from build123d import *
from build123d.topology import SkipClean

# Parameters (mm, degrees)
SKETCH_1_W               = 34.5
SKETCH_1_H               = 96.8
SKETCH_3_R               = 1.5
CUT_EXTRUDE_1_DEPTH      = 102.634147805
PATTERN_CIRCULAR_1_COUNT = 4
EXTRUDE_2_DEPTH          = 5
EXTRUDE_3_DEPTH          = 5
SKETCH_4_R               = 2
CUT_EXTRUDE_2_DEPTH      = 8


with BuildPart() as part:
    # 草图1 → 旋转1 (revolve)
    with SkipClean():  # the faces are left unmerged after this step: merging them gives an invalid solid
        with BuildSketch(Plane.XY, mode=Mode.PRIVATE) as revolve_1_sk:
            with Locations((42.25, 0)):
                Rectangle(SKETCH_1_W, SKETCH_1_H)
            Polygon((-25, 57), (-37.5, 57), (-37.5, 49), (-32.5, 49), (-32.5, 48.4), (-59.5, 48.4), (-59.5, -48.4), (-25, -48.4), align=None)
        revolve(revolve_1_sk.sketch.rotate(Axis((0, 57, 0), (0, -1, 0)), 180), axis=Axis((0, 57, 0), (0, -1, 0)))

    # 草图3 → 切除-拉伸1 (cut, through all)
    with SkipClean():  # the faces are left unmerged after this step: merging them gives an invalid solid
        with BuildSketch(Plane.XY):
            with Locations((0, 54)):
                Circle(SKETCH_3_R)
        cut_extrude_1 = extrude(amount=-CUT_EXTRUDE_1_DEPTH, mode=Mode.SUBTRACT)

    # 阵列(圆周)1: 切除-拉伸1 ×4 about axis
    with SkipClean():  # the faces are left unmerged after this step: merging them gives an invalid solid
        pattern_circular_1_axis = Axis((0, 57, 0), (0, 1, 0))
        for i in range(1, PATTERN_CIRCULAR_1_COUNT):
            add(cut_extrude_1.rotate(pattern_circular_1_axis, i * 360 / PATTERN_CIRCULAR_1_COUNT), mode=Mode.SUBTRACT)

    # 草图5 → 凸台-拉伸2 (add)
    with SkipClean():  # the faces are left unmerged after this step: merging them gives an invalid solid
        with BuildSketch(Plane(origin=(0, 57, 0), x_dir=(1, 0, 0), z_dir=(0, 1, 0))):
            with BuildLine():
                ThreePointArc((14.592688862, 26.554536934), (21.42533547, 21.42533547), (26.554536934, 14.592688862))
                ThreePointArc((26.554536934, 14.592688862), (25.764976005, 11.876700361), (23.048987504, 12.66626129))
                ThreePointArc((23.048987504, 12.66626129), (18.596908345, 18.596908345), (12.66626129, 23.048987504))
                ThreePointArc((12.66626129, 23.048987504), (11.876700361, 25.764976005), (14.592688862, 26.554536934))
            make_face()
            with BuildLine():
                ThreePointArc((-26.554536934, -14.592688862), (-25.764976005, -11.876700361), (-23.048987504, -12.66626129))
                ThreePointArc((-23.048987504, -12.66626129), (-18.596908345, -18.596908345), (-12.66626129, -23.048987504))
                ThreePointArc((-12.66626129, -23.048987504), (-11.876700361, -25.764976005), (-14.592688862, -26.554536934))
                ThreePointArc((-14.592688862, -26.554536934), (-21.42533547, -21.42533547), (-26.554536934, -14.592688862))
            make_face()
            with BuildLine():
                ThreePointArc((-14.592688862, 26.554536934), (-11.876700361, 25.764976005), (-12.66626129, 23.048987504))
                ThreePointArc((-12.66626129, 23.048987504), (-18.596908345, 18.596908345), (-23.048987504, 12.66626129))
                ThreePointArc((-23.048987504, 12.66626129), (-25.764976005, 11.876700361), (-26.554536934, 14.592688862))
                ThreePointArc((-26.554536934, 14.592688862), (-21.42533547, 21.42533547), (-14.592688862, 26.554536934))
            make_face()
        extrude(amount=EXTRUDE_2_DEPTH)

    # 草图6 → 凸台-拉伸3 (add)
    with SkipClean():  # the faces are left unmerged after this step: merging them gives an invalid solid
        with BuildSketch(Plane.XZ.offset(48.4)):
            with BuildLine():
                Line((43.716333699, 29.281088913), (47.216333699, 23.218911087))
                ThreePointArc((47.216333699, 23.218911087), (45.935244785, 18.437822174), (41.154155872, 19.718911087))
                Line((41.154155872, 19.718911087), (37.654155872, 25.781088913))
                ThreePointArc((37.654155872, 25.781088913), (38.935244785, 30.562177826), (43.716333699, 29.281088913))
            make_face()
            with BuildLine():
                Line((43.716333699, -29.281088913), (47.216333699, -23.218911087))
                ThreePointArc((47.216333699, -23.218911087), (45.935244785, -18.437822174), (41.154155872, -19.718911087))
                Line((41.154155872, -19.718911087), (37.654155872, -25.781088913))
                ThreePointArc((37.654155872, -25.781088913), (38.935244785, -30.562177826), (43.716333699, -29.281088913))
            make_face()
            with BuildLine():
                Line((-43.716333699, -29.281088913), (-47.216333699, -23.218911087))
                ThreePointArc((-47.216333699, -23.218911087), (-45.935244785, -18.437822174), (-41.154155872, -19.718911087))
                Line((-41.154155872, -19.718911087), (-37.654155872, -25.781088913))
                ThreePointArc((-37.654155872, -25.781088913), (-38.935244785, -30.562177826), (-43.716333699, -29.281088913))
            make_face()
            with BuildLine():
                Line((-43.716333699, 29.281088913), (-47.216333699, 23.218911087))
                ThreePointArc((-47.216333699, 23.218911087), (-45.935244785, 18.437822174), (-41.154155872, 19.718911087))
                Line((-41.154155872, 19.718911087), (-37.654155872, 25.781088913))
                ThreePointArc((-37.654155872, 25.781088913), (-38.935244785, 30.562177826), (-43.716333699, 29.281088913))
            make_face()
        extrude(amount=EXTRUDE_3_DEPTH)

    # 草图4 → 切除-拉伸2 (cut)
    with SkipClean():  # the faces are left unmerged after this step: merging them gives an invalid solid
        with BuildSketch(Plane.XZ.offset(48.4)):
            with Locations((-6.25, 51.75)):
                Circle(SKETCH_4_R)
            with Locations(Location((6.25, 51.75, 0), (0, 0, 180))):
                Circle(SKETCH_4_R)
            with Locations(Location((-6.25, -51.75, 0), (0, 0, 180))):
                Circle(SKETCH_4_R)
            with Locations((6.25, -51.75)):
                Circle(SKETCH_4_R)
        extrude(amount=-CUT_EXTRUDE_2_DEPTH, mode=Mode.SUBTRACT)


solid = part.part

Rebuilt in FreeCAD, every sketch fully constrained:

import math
import FreeCAD as App
import Part
import Sketcher
from FreeCAD import Vector
Q = App.Units.Quantity

doc = App.newDocument("Part")
body = doc.addObject("PartDesign::Body", "Body")

# Sketch on XY plane
sketch1 = body.newObject("Sketcher::SketchObject", "Sketch")
sketch1.AttachmentSupport = (doc.getObject("XY_Plane"), [""])
sketch1.MapMode = "FlatFace"
sketch1.addGeometry(Part.LineSegment(Vector(25, 48.4, 0), Vector(25, -48.4, 0)), False)
sketch1.addGeometry(Part.LineSegment(Vector(25, -48.4, 0), Vector(59.5, -48.4, 0)), False)
sketch1.addGeometry(Part.LineSegment(Vector(59.5, -48.4, 0), Vector(59.5, 48.4, 0)), False)
sketch1.addGeometry(Part.LineSegment(Vector(59.5, 48.4, 0), Vector(25, 48.4, 0)), False)
sketch1.addGeometry(Part.LineSegment(Vector(-25, 57, 0), Vector(-37.5, 57, 0)), False)
sketch1.addGeometry(Part.LineSegment(Vector(-37.5, 57, 0), Vector(-37.5, 49, 0)), False)
sketch1.addGeometry(Part.LineSegment(Vector(-37.5, 49, 0), Vector(-32.5, 49, 0)), False)
sketch1.addGeometry(Part.LineSegment(Vector(-32.5, 49, 0), Vector(-32.5, 48.4, 0)), False)
sketch1.addGeometry(Part.LineSegment(Vector(-32.5, 48.4, 0), Vector(-59.5, 48.4, 0)), False)
sketch1.addGeometry(Part.LineSegment(Vector(-59.5, 48.4, 0), Vector(-59.5, -48.4, 0)), False)
sketch1.addGeometry(Part.LineSegment(Vector(-59.5, -48.4, 0), Vector(-25, -48.4, 0)), False)
sketch1.addGeometry(Part.LineSegment(Vector(-25, -48.4, 0), Vector(-25, 57, 0)), False)
sketch1.addConstraint(Sketcher.Constraint("Coincident", 0, 2, 1, 1))
sketch1.addConstraint(Sketcher.Constraint("Coincident", 1, 2, 2, 1))
sketch1.addConstraint(Sketcher.Constraint("Coincident", 2, 2, 3, 1))
sketch1.addConstraint(Sketcher.Constraint("Coincident", 3, 2, 0, 1))
sketch1.addConstraint(Sketcher.Constraint("Coincident", 4, 2, 5, 1))
sketch1.addConstraint(Sketcher.Constraint("Coincident", 5, 2, 6, 1))
sketch1.addConstraint(Sketcher.Constraint("Coincident", 6, 2, 7, 1))
sketch1.addConstraint(Sketcher.Constraint("Coincident", 7, 2, 8, 1))
sketch1.addConstraint(Sketcher.Constraint("Coincident", 8, 2, 9, 1))
sketch1.addConstraint(Sketcher.Constraint("Coincident", 9, 2, 10, 1))
sketch1.addConstraint(Sketcher.Constraint("Coincident", 10, 2, 11, 1))
sketch1.addConstraint(Sketcher.Constraint("Coincident", 11, 2, 4, 1))
sketch1.addConstraint(Sketcher.Constraint("Vertical", 0))
sketch1.addConstraint(Sketcher.Constraint("Horizontal", 1))
sketch1.addConstraint(Sketcher.Constraint("Vertical", 2))
sketch1.addConstraint(Sketcher.Constraint("Horizontal", 3))
sketch1.addConstraint(Sketcher.Constraint("Horizontal", 4))
sketch1.addConstraint(Sketcher.Constraint("Vertical", 5))
sketch1.addConstraint(Sketcher.Constraint("Horizontal", 6))
sketch1.addConstraint(Sketcher.Constraint("Vertical", 7))
sketch1.addConstraint(Sketcher.Constraint("Horizontal", 8))
sketch1.addConstraint(Sketcher.Constraint("Vertical", 9))
sketch1.addConstraint(Sketcher.Constraint("Horizontal", 10))
sketch1.addConstraint(Sketcher.Constraint("Vertical", 11))
sketch1.addConstraint(Sketcher.Constraint("Symmetric", 1, 2, 8, 2, -1, 1))
sketch1.addConstraint(Sketcher.Constraint("Symmetric", 3, 2, 10, 2, -1, 1))
sketch1.addConstraint(Sketcher.Constraint("Horizontal", 3, 2, 7, 2))
sketch1.addConstraint(Sketcher.Constraint("DistanceX", 6, 1, 6, 2, 5.0))
sketch1.addConstraint(Sketcher.Constraint("DistanceX", 8, 2, 8, 1, 27.0))
sketch1.addConstraint(Sketcher.Constraint("DistanceY", 5, 2, 5, 1, 8.0))
sketch1.addConstraint(Sketcher.Constraint("DistanceX", 1, 1, 1, 2, 34.5))
sketch1.addConstraint(Sketcher.Constraint("DistanceY", 0, 2, 0, 1, 96.8))
sketch1.addConstraint(Sketcher.Constraint("DistanceY", 7, 2, 7, 1, 0.6))
sketch1.addConstraint(Sketcher.Constraint("DistanceX", -1, 1, 0, 2, 25.0))
revolution = body.newObject("PartDesign::Revolution", "Revolution")
revolution.Profile = sketch1
revolution.ReferenceAxis = (sketch1, ["V_Axis"])
revolution.Angle = 360

# Sketch on XY plane
sketch2 = body.newObject("Sketcher::SketchObject", "Sketch001")
sketch2.AttachmentSupport = (doc.getObject("XY_Plane"), [""])
sketch2.MapMode = "FlatFace"
sketch2.addGeometry(Part.Circle(Vector(0, 54, 0), Vector(0, 0, 1), 1.5), False)
sketch2.addConstraint(Sketcher.Constraint("PointOnObject", 0, 3, -2))
sketch2.addConstraint(Sketcher.Constraint("Diameter", 0, 3.0))
sketch2.addConstraint(Sketcher.Constraint("DistanceY", -1, 1, 0, 3, 54.0))
pocket1 = body.newObject("PartDesign::Pocket", "Pocket")
pocket1.Profile = sketch2
pocket1.Type = "ThroughAll"
doc.recompute()

polarpattern = body.newObject("PartDesign::PolarPattern", "PolarPattern")
polarpattern.Originals = [pocket1]
polarpattern.Axis = (doc.getObject("Y_Axis"), [""])
polarpattern.Angle = 360
polarpattern.Occurrences = 4
body.Tip = polarpattern

# Sketch on XZ plane
sketch3 = body.newObject("Sketcher::SketchObject", "Sketch002")
sketch3.AttachmentSupport = (doc.getObject("XZ_Plane"), [""])
sketch3.MapMode = "FlatFace"
sketch3.AttachmentOffset = App.Placement(Vector(0, 0, -57), App.Rotation())
sketch3.addGeometry(Part.ArcOfCircle(Part.Circle(Vector(0, 0, 0), Vector(0, 0, 1), 30.3), math.radians(-61), math.radians(-29)), False)
sketch3.addGeometry(Part.ArcOfCircle(Part.Circle(Vector(13.6, -24.8, 0), Vector(0, 0, 1), 2), math.radians(119), math.radians(299)), False)
sketch3.addGeometry(Part.ArcOfCircle(Part.Circle(Vector(0, 0, 0), Vector(0, 0, 1), 26.3), math.radians(-61), math.radians(-29)), False)
sketch3.addGeometry(Part.ArcOfCircle(Part.Circle(Vector(24.8, -13.6, 0), Vector(0, 0, 1), 2), math.radians(-29), math.radians(151)), False)
sketch3.addGeometry(Part.ArcOfCircle(Part.Circle(Vector(-24.8, 13.6, 0), Vector(0, 0, 1), 2), math.radians(151), math.radians(331)), False)
sketch3.addGeometry(Part.ArcOfCircle(Part.Circle(Vector(0, 0, 0), Vector(0, 0, 1), 30.3), math.radians(119), math.radians(151)), False)
sketch3.addGeometry(Part.ArcOfCircle(Part.Circle(Vector(-13.6, 24.8, 0), Vector(0, 0, 1), 2), math.radians(-61), math.radians(119)), False)
sketch3.addGeometry(Part.ArcOfCircle(Part.Circle(Vector(0, 0, 0), Vector(0, 0, 1), 26.3), math.radians(119), math.radians(151)), False)
sketch3.addGeometry(Part.ArcOfCircle(Part.Circle(Vector(-13.6, -24.8, 0), Vector(0, 0, 1), 2), math.radians(-119), math.radians(61)), False)
sketch3.addGeometry(Part.ArcOfCircle(Part.Circle(Vector(0, 0, 0), Vector(0, 0, 1), 30.3), math.radians(-151), math.radians(-119)), False)
sketch3.addGeometry(Part.ArcOfCircle(Part.Circle(Vector(-24.8, -13.6, 0), Vector(0, 0, 1), 2), math.radians(29), math.radians(209)), False)
sketch3.addGeometry(Part.ArcOfCircle(Part.Circle(Vector(0, 0, 0), Vector(0, 0, 1), 26.3), math.radians(-151), math.radians(-119)), False)
sketch3.addConstraint(Sketcher.Constraint("Tangent", 0, 1, 1, 2))
sketch3.addConstraint(Sketcher.Constraint("Tangent", 1, 1, 2, 1))
sketch3.addConstraint(Sketcher.Constraint("Tangent", 2, 2, 3, 2))
sketch3.addConstraint(Sketcher.Constraint("Tangent", 3, 1, 0, 2))
sketch3.addConstraint(Sketcher.Constraint("Tangent", 4, 1, 5, 2))
sketch3.addConstraint(Sketcher.Constraint("Tangent", 5, 1, 6, 2))
sketch3.addConstraint(Sketcher.Constraint("Tangent", 6, 1, 7, 1))
sketch3.addConstraint(Sketcher.Constraint("Tangent", 7, 2, 4, 2))
sketch3.addConstraint(Sketcher.Constraint("Tangent", 8, 1, 9, 2))
sketch3.addConstraint(Sketcher.Constraint("Tangent", 9, 1, 10, 2))
sketch3.addConstraint(Sketcher.Constraint("Tangent", 10, 1, 11, 1))
sketch3.addConstraint(Sketcher.Constraint("Tangent", 11, 2, 8, 2))
sketch3.addConstraint(Sketcher.Constraint("Coincident", 0, 3, -1, 1))
sketch3.addConstraint(Sketcher.Constraint("Coincident", 2, 3, -1, 1))
sketch3.addConstraint(Sketcher.Constraint("Coincident", 5, 3, -1, 1))
sketch3.addConstraint(Sketcher.Constraint("Coincident", 7, 3, -1, 1))
sketch3.addConstraint(Sketcher.Constraint("Coincident", 9, 3, -1, 1))
sketch3.addConstraint(Sketcher.Constraint("Coincident", 11, 3, -1, 1))
sketch3.addConstraint(Sketcher.Constraint("Equal", 3, 4))
sketch3.addConstraint(Sketcher.Constraint("Equal", 0, 5))
sketch3.addConstraint(Sketcher.Constraint("Equal", 6, 8))
sketch3.addConstraint(Sketcher.Constraint("Equal", 5, 9))
sketch3.addConstraint(Sketcher.Constraint("Horizontal", 1, 3, 8, 3))
sketch3.addConstraint(Sketcher.Constraint("Horizontal", 3, 3, 10, 3))
sketch3.addConstraint(Sketcher.Constraint("Vertical", 6, 3, 8, 3))
sketch3.addConstraint(Sketcher.Constraint("Vertical", 4, 3, 10, 3))
sketch3.addConstraint(Sketcher.Constraint("Radius", 1, 2.0))
sketch3.addConstraint(Sketcher.Constraint("Radius", 0, 30.3))
sketch3.addConstraint(Sketcher.Constraint("DistanceX", 1, 1, 3, 3, 12.135501))
sketch3.addConstraint(Sketcher.Constraint("DistanceY", 1, 3, 2, 2, 12.135501))
pad1 = body.newObject("PartDesign::Pad", "Pad")
pad1.Profile = sketch3
pad1.Length = 5
pad1.Reversed = True

# Sketch on XZ plane
sketch4 = body.newObject("Sketcher::SketchObject", "Sketch003")
sketch4.AttachmentSupport = (doc.getObject("XZ_Plane"), [""])
sketch4.MapMode = "FlatFace"
sketch4.AttachmentOffset = App.Placement(Vector(0, 0, 48.4), App.Rotation())
sketch4.addGeometry(Part.LineSegment(Vector(47.2, 23.2, 0), Vector(43.7, 29.3, 0)), False)
sketch4.addGeometry(Part.ArcOfCircle(Part.Circle(Vector(40.7, 27.5, 0), Vector(0, 0, 1), 3.5), math.radians(30), math.radians(210)), False)
sketch4.addGeometry(Part.LineSegment(Vector(37.7, 25.8, 0), Vector(41.2, 19.7, 0)), False)
sketch4.addGeometry(Part.ArcOfCircle(Part.Circle(Vector(44.2, 21.5, 0), Vector(0, 0, 1), 3.5), math.radians(-150), math.radians(30)), False)
sketch4.addGeometry(Part.LineSegment(Vector(43.7, -29.3, 0), Vector(47.2, -23.2, 0)), False)
sketch4.addGeometry(Part.ArcOfCircle(Part.Circle(Vector(44.2, -21.5, 0), Vector(0, 0, 1), 3.5), math.radians(-30), math.radians(150)), False)
sketch4.addGeometry(Part.LineSegment(Vector(41.2, -19.7, 0), Vector(37.7, -25.8, 0)), False)
sketch4.addGeometry(Part.ArcOfCircle(Part.Circle(Vector(40.7, -27.5, 0), Vector(0, 0, 1), 3.5), math.radians(150), math.radians(330)), False)
sketch4.addGeometry(Part.LineSegment(Vector(-47.2, -23.2, 0), Vector(-43.7, -29.3, 0)), False)
sketch4.addGeometry(Part.ArcOfCircle(Part.Circle(Vector(-40.7, -27.5, 0), Vector(0, 0, 1), 3.5), math.radians(-150), math.radians(30)), False)
sketch4.addGeometry(Part.LineSegment(Vector(-37.7, -25.8, 0), Vector(-41.2, -19.7, 0)), False)
sketch4.addGeometry(Part.ArcOfCircle(Part.Circle(Vector(-44.2, -21.5, 0), Vector(0, 0, 1), 3.5), math.radians(30), math.radians(210)), False)
sketch4.addGeometry(Part.LineSegment(Vector(-43.7, 29.3, 0), Vector(-47.2, 23.2, 0)), False)
sketch4.addGeometry(Part.ArcOfCircle(Part.Circle(Vector(-44.2, 21.5, 0), Vector(0, 0, 1), 3.5), math.radians(150), math.radians(330)), False)
sketch4.addGeometry(Part.LineSegment(Vector(-41.2, 19.7, 0), Vector(-37.7, 25.8, 0)), False)
sketch4.addGeometry(Part.ArcOfCircle(Part.Circle(Vector(-40.7, 27.5, 0), Vector(0, 0, 1), 3.5), math.radians(-30), math.radians(150)), False)
sketch4.addConstraint(Sketcher.Constraint("Tangent", 0, 2, 1, 1))
sketch4.addConstraint(Sketcher.Constraint("Tangent", 1, 2, 2, 1))
sketch4.addConstraint(Sketcher.Constraint("Tangent", 2, 2, 3, 1))
sketch4.addConstraint(Sketcher.Constraint("Tangent", 3, 2, 0, 1))
sketch4.addConstraint(Sketcher.Constraint("Tangent", 4, 2, 5, 1))
sketch4.addConstraint(Sketcher.Constraint("Tangent", 5, 2, 6, 1))
sketch4.addConstraint(Sketcher.Constraint("Tangent", 6, 2, 7, 1))
sketch4.addConstraint(Sketcher.Constraint("Tangent", 7, 2, 4, 1))
sketch4.addConstraint(Sketcher.Constraint("Tangent", 8, 2, 9, 1))
sketch4.addConstraint(Sketcher.Constraint("Tangent", 9, 2, 10, 1))
sketch4.addConstraint(Sketcher.Constraint("Tangent", 10, 2, 11, 1))
sketch4.addConstraint(Sketcher.Constraint("Tangent", 11, 2, 8, 1))
sketch4.addConstraint(Sketcher.Constraint("Tangent", 12, 2, 13, 1))
sketch4.addConstraint(Sketcher.Constraint("Tangent", 13, 2, 14, 1))
sketch4.addConstraint(Sketcher.Constraint("Tangent", 14, 2, 15, 1))
sketch4.addConstraint(Sketcher.Constraint("Tangent", 15, 2, 12, 1))
sketch4.addConstraint(Sketcher.Constraint("Equal", 1, 3))
sketch4.addConstraint(Sketcher.Constraint("Equal", 3, 5))
sketch4.addConstraint(Sketcher.Constraint("Equal", 5, 7))
sketch4.addConstraint(Sketcher.Constraint("Equal", 7, 9))
sketch4.addConstraint(Sketcher.Constraint("Equal", 9, 11))
sketch4.addConstraint(Sketcher.Constraint("Equal", 11, 13))
sketch4.addConstraint(Sketcher.Constraint("Equal", 13, 15))
sketch4.addConstraint(Sketcher.Constraint("Symmetric", 1, 3, 9, 3, -1, 1))
sketch4.addConstraint(Sketcher.Constraint("Symmetric", 3, 3, 11, 3, -1, 1))
sketch4.addConstraint(Sketcher.Constraint("Symmetric", 5, 3, 13, 3, -1, 1))
sketch4.addConstraint(Sketcher.Constraint("Symmetric", 7, 3, 15, 3, -1, 1))
sketch4.addConstraint(Sketcher.Constraint("Symmetric", 7, 3, 9, 3, -2))
sketch4.addConstraint(Sketcher.Constraint("Symmetric", 5, 3, 11, 3, -2))
sketch4.addConstraint(Sketcher.Constraint("Radius", 1, 3.5))
sketch4.addConstraint(Sketcher.Constraint("Angle", 0, Q("120 deg")))
sketch4.addConstraint(Sketcher.Constraint("Distance", 0, 7.0))
sketch4.addConstraint(Sketcher.Constraint("DistanceY", 5, 3, 1, 3, 49.0))
sketch4.addConstraint(Sketcher.Constraint("DistanceX", 9, 3, 7, 3, 81.37049))
pad2 = body.newObject("PartDesign::Pad", "Pad001")
pad2.Profile = sketch4
pad2.Length = 5

# Sketch on XZ plane
sketch5 = body.newObject("Sketcher::SketchObject", "Sketch004")
sketch5.AttachmentSupport = (doc.getObject("XZ_Plane"), [""])
sketch5.MapMode = "FlatFace"
sketch5.AttachmentOffset = App.Placement(Vector(0, 0, 48.4), App.Rotation())
sketch5.addGeometry(Part.Circle(Vector(-6.2, 51.8, 0), Vector(0, 0, 1), 2), False)
sketch5.addGeometry(Part.Circle(Vector(6.2, 51.8, 0), Vector(0, 0, 1), 2), False)
sketch5.addGeometry(Part.Circle(Vector(-6.2, -51.8, 0), Vector(0, 0, 1), 2), False)
sketch5.addGeometry(Part.Circle(Vector(6.2, -51.8, 0), Vector(0, 0, 1), 2), False)
sketch5.addConstraint(Sketcher.Constraint("Equal", 0, 1))
sketch5.addConstraint(Sketcher.Constraint("Equal", 1, 2))
sketch5.addConstraint(Sketcher.Constraint("Equal", 2, 3))
sketch5.addConstraint(Sketcher.Constraint("Symmetric", 1, 3, 2, 3, -1, 1))
sketch5.addConstraint(Sketcher.Constraint("Symmetric", 0, 3, 3, 3, -1, 1))
sketch5.addConstraint(Sketcher.Constraint("Symmetric", 0, 3, 1, 3, -2))
sketch5.addConstraint(Sketcher.Constraint("Diameter", 0, 4.0))
sketch5.addConstraint(Sketcher.Constraint("DistanceX", 0, 3, 1, 3, 12.5))
sketch5.addConstraint(Sketcher.Constraint("DistanceY", 2, 3, 0, 3, 103.5))
pocket2 = body.newObject("PartDesign::Pocket", "Pocket001")
pocket2.Profile = sketch5
pocket2.Length = 8

doc.recompute()
